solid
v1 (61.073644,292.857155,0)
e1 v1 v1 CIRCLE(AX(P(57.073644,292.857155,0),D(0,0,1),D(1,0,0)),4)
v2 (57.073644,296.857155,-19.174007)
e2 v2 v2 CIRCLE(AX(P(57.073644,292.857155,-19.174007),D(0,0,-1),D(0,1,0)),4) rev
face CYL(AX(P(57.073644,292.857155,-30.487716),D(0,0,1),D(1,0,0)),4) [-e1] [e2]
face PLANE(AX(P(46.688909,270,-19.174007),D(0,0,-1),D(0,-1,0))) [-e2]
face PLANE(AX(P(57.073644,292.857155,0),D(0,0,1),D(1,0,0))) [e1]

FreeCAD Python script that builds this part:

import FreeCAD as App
import Part
import Sketcher

V = App.Vector

doc = App.newDocument("Part")
body = doc.addObject("PartDesign::Body", "Body")

# Sketch on XY plane
sketch1 = body.newObject("Sketcher::SketchObject", "Sketch")
sketch1.AttachmentSupport = (doc.getObject("XY_Plane"), [""])
sketch1.MapMode = "FlatFace"
sketch1.addGeometry(Part.Circle(V(57.073644, 292.857155, 0), V(0, 0, 1), 4), False)
sketch1.addConstraint(Sketcher.Constraint("Diameter", 0, 8.0))
sketch1.addConstraint(Sketcher.Constraint("DistanceX", -1, 1, 0, 3, 57.073644))
sketch1.addConstraint(Sketcher.Constraint("DistanceY", -1, 1, 0, 3, 292.857155))
pad1 = body.newObject("PartDesign::Pad", "Pad")
pad1.Profile = sketch1
pad1.Length = 19.174007
pad1.Reversed = True

doc.recompute()
